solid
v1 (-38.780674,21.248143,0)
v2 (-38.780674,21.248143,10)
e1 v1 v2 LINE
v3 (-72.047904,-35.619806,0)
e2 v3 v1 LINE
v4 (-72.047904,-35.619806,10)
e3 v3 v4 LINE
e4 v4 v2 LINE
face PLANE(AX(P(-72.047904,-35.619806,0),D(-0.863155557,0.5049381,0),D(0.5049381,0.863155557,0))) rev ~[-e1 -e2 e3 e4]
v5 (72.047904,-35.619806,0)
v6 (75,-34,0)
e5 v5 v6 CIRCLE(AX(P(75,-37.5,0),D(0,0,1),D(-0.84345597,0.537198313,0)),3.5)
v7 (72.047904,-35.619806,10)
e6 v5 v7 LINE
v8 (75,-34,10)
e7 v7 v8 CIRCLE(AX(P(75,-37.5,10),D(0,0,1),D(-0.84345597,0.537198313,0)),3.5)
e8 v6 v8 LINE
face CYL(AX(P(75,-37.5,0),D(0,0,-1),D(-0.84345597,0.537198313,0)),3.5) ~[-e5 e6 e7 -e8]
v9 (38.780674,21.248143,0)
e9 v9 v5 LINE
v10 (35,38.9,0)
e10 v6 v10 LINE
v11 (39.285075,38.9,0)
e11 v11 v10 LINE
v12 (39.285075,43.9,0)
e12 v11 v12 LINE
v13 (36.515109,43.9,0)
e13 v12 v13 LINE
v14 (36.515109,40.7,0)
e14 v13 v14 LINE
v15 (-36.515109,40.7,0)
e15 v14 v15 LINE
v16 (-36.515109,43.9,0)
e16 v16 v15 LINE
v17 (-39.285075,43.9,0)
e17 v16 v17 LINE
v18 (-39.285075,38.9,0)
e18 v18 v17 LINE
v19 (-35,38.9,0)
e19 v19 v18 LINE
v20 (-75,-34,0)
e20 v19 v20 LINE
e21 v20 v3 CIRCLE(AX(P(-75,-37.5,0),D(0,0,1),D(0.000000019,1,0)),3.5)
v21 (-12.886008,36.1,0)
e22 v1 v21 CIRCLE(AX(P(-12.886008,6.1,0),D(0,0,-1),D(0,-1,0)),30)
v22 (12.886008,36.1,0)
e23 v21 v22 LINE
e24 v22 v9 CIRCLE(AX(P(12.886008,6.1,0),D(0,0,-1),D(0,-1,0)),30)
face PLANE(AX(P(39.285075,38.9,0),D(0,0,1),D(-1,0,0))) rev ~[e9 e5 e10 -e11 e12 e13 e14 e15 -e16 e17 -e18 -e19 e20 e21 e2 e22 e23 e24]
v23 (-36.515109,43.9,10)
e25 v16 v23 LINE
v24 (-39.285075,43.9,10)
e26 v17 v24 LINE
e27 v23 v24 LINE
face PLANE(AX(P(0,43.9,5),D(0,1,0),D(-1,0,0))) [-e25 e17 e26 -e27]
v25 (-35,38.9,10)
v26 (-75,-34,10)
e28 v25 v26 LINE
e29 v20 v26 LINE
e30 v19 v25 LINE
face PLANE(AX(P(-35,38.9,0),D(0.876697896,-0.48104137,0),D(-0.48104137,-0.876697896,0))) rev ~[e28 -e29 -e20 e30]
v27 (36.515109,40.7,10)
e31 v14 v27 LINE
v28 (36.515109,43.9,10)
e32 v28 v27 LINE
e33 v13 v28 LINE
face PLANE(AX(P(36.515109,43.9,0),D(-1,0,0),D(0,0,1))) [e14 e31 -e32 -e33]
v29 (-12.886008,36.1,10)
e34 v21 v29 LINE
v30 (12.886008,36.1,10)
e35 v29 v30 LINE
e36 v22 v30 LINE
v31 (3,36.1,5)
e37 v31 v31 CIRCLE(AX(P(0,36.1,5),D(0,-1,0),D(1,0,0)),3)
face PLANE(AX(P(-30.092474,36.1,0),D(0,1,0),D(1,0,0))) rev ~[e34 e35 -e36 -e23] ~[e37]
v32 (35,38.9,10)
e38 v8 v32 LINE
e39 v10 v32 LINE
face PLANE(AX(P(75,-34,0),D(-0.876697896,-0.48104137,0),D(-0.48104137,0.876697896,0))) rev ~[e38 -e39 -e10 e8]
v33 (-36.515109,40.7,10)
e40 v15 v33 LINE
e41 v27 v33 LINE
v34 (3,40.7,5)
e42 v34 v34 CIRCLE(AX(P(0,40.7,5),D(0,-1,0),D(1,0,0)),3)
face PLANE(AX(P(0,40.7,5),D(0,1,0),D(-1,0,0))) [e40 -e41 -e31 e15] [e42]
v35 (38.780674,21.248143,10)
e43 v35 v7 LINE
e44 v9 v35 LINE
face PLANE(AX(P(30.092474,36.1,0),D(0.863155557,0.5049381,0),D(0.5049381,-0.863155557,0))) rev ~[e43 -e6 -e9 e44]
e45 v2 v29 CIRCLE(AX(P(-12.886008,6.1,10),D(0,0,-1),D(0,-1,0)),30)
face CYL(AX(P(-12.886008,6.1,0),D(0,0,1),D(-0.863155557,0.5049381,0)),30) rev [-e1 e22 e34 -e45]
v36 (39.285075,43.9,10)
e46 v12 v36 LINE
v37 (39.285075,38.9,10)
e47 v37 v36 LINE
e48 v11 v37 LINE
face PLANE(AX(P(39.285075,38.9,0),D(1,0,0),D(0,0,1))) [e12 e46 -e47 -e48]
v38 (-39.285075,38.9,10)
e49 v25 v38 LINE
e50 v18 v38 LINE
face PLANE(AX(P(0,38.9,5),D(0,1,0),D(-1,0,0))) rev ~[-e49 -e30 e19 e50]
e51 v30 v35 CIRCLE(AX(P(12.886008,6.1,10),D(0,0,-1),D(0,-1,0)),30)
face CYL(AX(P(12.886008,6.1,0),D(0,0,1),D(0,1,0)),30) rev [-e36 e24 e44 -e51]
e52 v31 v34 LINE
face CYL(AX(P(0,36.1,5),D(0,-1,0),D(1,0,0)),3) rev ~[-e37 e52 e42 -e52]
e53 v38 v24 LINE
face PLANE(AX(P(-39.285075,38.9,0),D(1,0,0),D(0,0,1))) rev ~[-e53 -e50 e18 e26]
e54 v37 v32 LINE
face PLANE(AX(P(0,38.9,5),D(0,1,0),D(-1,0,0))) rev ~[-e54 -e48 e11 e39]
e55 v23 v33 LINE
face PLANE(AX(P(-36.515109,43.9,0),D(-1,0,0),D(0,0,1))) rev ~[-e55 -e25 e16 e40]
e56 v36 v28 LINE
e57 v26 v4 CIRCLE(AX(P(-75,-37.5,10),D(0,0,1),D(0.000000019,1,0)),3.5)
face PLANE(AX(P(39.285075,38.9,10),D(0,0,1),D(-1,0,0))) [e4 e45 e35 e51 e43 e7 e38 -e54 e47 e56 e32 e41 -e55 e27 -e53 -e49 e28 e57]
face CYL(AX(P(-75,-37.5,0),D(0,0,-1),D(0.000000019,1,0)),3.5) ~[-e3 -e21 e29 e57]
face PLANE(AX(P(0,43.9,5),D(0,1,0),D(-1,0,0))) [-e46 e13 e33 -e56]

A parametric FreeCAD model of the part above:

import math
import FreeCAD as App
import Part
import Sketcher
from FreeCAD import Vector


def edges_at(feature, points):
    """Names of the edges that pass closest to the given points."""
    edges = feature.Shape.Edges
    near = lambda p: min(range(len(edges)), key=lambda i: edges[i].distToShape(Part.Vertex(*p))[0])
    return sorted({f"Edge{near(p) + 1}" for p in points})


def add_polygon(sketch, points):
    """Adds a closed chain of lines whose ends are joined by coincident constraints."""
    first, n = sketch.GeometryCount, len(points)
    for a, b in zip(points, points[1:] + points[:1]):
        sketch.addGeometry(Part.LineSegment(App.Vector(*a, 0), App.Vector(*b, 0)), False)
    for i in range(n):
        sketch.addConstraint(Sketcher.Constraint("Coincident", first + i, 2, first + (i + 1) % n, 1))

doc = App.newDocument("Part")
params = doc.addObject("Spreadsheet::Sheet", "Params")
for row, (alias, value) in enumerate([
    ("sketch1_radius", "3.5 mm"),
    ("sketch1_width", "70 mm"),
    ("pad1_length", "10 mm"),
    ("fillet_radius", "30 mm"),
    ("sketch2_height", "10 mm"),
    ("pad2_length", "5 mm"),
    ("sketch3_height", "10 mm"),
    ("pocket1_length", "3.2 mm"),
    ("sketch4_diameter", "6 mm"),
], start=1):
    params.set(f"A{row}", alias)
    params.set(f"B{row}", "=" + value)
    params.setAlias(f"B{row}", alias)

body = doc.addObject("PartDesign::Body", "Body")

# Sketch on XY plane
sketch1 = doc.addObject("Sketcher::SketchObject", "Sketch")
body.addObject(sketch1)
sketch1.AttachmentSupport = (doc.XY_Plane, [""])
sketch1.MapMode = "FlatFace"
sketch1.addGeometry(Part.LineSegment(Vector(-35, 38.9, 0), Vector(-75, -34, 0)), False)
sketch1.addGeometry(Part.ArcOfCircle(Part.Circle(Vector(-75, -37.5, 0), Vector(0, 0, 1), 3.5), math.radians(90), math.radians(392)), False)
sketch1.addGeometry(Part.LineSegment(Vector(-72, -35.6, 0), Vector(-30.1, 36.1, 0)), False)
sketch1.addGeometry(Part.LineSegment(Vector(-30.1, 36.1, 0), Vector(30.1, 36.1, 0)), False)
sketch1.addGeometry(Part.LineSegment(Vector(30.1, 36.1, 0), Vector(72, -35.6, 0)), False)
sketch1.addGeometry(Part.ArcOfCircle(Part.Circle(Vector(75, -37.5, 0), Vector(0, 0, 1), 3.5), math.radians(148), math.radians(450)), False)
sketch1.addGeometry(Part.LineSegment(Vector(75, -34, 0), Vector(35, 38.9, 0)), False)
sketch1.addGeometry(Part.LineSegment(Vector(35, 38.9, 0), Vector(-35, 38.9, 0)), False)
sketch1.addConstraint(Sketcher.Constraint("Coincident", 0, 2, 1, 1))
sketch1.addConstraint(Sketcher.Constraint("Coincident", 1, 2, 2, 1))
sketch1.addConstraint(Sketcher.Constraint("Coincident", 2, 2, 3, 1))
sketch1.addConstraint(Sketcher.Constraint("Coincident", 3, 2, 4, 1))
sketch1.addConstraint(Sketcher.Constraint("Coincident", 4, 2, 5, 1))
sketch1.addConstraint(Sketcher.Constraint("Coincident", 5, 2, 6, 1))
sketch1.addConstraint(Sketcher.Constraint("Coincident", 6, 2, 7, 1))
sketch1.addConstraint(Sketcher.Constraint("Coincident", 7, 2, 0, 1))
sketch1.addConstraint(Sketcher.Constraint("Horizontal", 3))
sketch1.addConstraint(Sketcher.Constraint("Horizontal", 7))
sketch1.addConstraint(Sketcher.Constraint("Equal", 1, 5))
sketch1.addConstraint(Sketcher.Constraint("Symmetric", 1, 3, 5, 3, -2))
sketch1.addConstraint(Sketcher.Constraint("Horizontal", 1, 2, 4, 2))
sketch1.addConstraint(Sketcher.Constraint("Vertical", 1, 3, 0, 2))
sketch1.addConstraint(Sketcher.Constraint("Equal", 2, 4))
sketch1.addConstraint(Sketcher.Constraint("Equal", 0, 6))
sketch1.addConstraint(Sketcher.Constraint("Radius", 1, 3.5))
sketch1.addConstraint(Sketcher.Constraint("DistanceX", 7, 2, 7, 1, 70.0))
sketch1.addConstraint(Sketcher.Constraint("DistanceX", 1, 3, -1, 1, 75.0))
sketch1.addConstraint(Sketcher.Constraint("DistanceY", 0, 2, -1, 1, 34.0))
sketch1.addConstraint(Sketcher.Constraint("DistanceX", -1, 1, 5, 2, 75.0))
sketch1.addConstraint(Sketcher.Constraint("DistanceY", -1, 1, 2, 2, 36.1))
sketch1.addConstraint(Sketcher.Constraint("DistanceY", -1, 1, 6, 2, 38.9))
sketch1.addConstraint(Sketcher.Constraint("DistanceX", 3, 1, 3, 2, 60.184948))
sketch1.addConstraint(Sketcher.Constraint("DistanceX", 1, 2, 2, 2, 41.95543))
sketch1.setExpression("Constraints[16]", "Params.sketch1_radius")
sketch1.setExpression("Constraints[17]", "Params.sketch1_width")
pad1 = doc.addObject("PartDesign::Pad", "Pad")
body.addObject(pad1)
pad1.Profile = sketch1
pad1.setExpression("Length", "Params.pad1_length")
doc.recompute()

fillet = doc.addObject("PartDesign::Fillet", "Fillet")
body.addObject(fillet)
fillet.Base = (pad1, edges_at(pad1, [(-30.092, 36.1, 5), (30.092, 36.1, 5)]))
fillet.setExpression("Radius", "Params.fillet_radius")

# Sketch on XZ plane
sketch2 = doc.addObject("Sketcher::SketchObject", "Sketch001")
body.addObject(sketch2)
sketch2.AttachmentSupport = (doc.XZ_Plane, [""])
sketch2.MapMode = "FlatFace"
sketch2.AttachmentOffset = App.Placement(Vector(0, 0, -38.9), App.Rotation())
add_polygon(sketch2, [(39, 10), (39, 0), (-39, 0), (-39, 10)])  # lines 0-3
sketch2.addConstraint(Sketcher.Constraint("Vertical", 0))
sketch2.addConstraint(Sketcher.Constraint("Horizontal", 1))
sketch2.addConstraint(Sketcher.Constraint("Vertical", 2))
sketch2.addConstraint(Sketcher.Constraint("Horizontal", 3))
sketch2.addConstraint(Sketcher.Constraint("Symmetric", 0, 2, 1, 2, -1, 1))
sketch2.addConstraint(Sketcher.Constraint("DistanceY", 0, 2, 0, 1, 10.0))
sketch2.addConstraint(Sketcher.Constraint("DistanceX", 1, 2, 1, 1, 78.57015))
sketch2.setExpression("Constraints[9]", "Params.sketch2_height")
pad2 = doc.addObject("PartDesign::Pad", "Pad001")
body.addObject(pad2)
pad2.Profile = sketch2
pad2.setExpression("Length", "Params.pad2_length")
pad2.Reversed = True

# Sketch on XZ plane
sketch3 = doc.addObject("Sketcher::SketchObject", "Sketch002")
body.addObject(sketch3)
sketch3.AttachmentSupport = (doc.XZ_Plane, [""])
sketch3.MapMode = "FlatFace"
sketch3.AttachmentOffset = App.Placement(Vector(0, 0, -43.9), App.Rotation())
add_polygon(sketch3, [(37, 10), (37, 0), (-37, 0), (-37, 10)])  # lines 0-3
sketch3.addConstraint(Sketcher.Constraint("Vertical", 0))
sketch3.addConstraint(Sketcher.Constraint("Horizontal", 1))
sketch3.addConstraint(Sketcher.Constraint("Vertical", 2))
sketch3.addConstraint(Sketcher.Constraint("Horizontal", 3))
sketch3.addConstraint(Sketcher.Constraint("Symmetric", 0, 2, 1, 2, -1, 1))
sketch3.addConstraint(Sketcher.Constraint("DistanceY", 0, 2, 0, 1, 10.0))
sketch3.addConstraint(Sketcher.Constraint("DistanceX", 1, 2, 1, 1, 73.030218))
sketch3.setExpression("Constraints[9]", "Params.sketch3_height")
pocket1 = doc.addObject("PartDesign::Pocket", "Pocket")
body.addObject(pocket1)
pocket1.Profile = sketch3
pocket1.setExpression("Length", "Params.pocket1_length")
pocket1.Reversed = True

# Sketch on XZ plane
sketch4 = doc.addObject("Sketcher::SketchObject", "Sketch003")
body.addObject(sketch4)
sketch4.AttachmentSupport = (doc.XZ_Plane, [""])
sketch4.MapMode = "FlatFace"
sketch4.AttachmentOffset = App.Placement(Vector(0, 0, -36.1), App.Rotation())
sketch4.addGeometry(Part.Circle(Vector(0, 5, 0), Vector(0, 0, 1), 3), False)
sketch4.addConstraint(Sketcher.Constraint("PointOnObject", 0, 3, -2))
sketch4.addConstraint(Sketcher.Constraint("Diameter", 0, 6.0))
sketch4.addConstraint(Sketcher.Constraint("DistanceY", -1, 1, 0, 3, 5.0))
sketch4.setExpression("Constraints[1]", "Params.sketch4_diameter")
pocket2 = doc.addObject("PartDesign::Pocket", "Pocket001")
body.addObject(pocket2)
pocket2.Profile = sketch4
pocket2.Type = "ThroughAll"

doc.recompute()
